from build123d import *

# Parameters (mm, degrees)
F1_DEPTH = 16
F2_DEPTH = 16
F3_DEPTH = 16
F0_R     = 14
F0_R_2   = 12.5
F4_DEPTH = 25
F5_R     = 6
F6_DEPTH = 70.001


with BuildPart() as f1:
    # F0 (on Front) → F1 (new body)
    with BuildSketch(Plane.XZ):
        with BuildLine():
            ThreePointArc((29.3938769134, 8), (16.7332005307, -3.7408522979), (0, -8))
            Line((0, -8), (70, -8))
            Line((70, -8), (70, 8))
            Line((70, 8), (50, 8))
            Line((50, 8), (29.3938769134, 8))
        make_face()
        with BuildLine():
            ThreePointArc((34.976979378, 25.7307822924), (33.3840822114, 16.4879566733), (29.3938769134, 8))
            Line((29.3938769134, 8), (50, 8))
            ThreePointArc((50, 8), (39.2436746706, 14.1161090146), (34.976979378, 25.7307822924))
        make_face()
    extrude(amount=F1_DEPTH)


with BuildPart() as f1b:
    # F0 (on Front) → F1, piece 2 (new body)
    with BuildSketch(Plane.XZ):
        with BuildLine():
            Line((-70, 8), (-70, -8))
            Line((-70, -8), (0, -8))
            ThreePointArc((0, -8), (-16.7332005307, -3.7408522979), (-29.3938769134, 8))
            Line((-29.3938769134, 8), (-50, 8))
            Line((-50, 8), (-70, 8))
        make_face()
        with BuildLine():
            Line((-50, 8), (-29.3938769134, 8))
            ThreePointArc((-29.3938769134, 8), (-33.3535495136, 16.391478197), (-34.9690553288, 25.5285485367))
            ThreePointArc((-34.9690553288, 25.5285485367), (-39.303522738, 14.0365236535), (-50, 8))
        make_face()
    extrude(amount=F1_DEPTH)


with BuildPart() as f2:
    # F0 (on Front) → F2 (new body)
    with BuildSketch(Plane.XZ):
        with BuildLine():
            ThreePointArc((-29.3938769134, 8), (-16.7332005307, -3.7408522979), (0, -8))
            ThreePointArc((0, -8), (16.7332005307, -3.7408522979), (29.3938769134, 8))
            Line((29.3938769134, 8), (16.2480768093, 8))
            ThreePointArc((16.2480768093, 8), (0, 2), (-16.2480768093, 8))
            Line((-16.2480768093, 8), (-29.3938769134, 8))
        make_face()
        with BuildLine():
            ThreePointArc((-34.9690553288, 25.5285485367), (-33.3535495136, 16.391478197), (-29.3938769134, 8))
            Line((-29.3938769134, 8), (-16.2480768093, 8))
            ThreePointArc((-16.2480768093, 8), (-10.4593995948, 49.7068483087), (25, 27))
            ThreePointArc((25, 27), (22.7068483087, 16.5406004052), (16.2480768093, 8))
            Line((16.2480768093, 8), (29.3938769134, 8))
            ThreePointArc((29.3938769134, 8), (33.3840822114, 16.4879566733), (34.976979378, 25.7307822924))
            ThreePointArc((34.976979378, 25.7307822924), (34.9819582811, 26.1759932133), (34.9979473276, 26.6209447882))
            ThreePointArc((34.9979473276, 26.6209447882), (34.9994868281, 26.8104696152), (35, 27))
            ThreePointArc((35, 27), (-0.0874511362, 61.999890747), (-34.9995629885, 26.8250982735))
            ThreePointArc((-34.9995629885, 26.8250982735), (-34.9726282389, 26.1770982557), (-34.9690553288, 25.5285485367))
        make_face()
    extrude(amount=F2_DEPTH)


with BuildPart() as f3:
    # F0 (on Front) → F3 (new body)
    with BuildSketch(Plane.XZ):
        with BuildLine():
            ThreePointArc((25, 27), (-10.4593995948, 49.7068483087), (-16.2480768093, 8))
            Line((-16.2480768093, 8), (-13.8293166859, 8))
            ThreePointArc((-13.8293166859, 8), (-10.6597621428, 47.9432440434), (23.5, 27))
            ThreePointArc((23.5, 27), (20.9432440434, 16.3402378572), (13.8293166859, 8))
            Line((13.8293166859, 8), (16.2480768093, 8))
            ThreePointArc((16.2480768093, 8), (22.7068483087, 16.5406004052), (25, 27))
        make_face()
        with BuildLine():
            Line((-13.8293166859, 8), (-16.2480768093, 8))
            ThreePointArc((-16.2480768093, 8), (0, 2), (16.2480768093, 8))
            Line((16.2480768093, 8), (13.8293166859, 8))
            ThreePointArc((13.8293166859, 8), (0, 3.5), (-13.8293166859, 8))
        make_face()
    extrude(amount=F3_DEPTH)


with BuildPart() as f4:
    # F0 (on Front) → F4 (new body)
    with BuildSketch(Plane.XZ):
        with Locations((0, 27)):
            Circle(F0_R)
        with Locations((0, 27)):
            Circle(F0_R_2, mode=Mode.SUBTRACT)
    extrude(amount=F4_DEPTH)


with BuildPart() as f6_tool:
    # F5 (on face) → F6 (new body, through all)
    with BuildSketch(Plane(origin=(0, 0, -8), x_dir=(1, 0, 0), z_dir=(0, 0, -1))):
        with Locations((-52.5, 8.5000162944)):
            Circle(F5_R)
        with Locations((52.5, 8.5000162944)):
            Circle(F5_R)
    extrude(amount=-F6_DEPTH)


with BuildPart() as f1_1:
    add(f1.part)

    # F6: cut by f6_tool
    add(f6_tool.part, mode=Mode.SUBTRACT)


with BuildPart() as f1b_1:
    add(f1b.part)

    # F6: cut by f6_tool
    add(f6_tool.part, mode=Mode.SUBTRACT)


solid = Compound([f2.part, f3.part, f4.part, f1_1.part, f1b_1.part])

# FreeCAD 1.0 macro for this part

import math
import FreeCAD as App
import Part
import Sketcher

doc = App.newDocument("Part")
body = doc.addObject("PartDesign::Body", "Body")

# Sketch on XZ plane
sketch1 = body.newObject("Sketcher::SketchObject", "Sketch")
sketch1.AttachmentSupport = (doc.getObject("XZ_Plane"), [""])
sketch1.MapMode = "FlatFace"
sketch1.addGeometry([
    Part.ArcOfCircle(Part.Circle(App.Vector(0, 27, 0), App.Vector(0, 0, 1), 35), math.radians(-90), math.radians(-33)),  # 0
    Part.LineSegment(App.Vector(0, -8, 0), App.Vector(70, -8, 0)),  # 1
    Part.LineSegment(App.Vector(70, -8, 0), App.Vector(70, 8, 0)),  # 2
    Part.LineSegment(App.Vector(70, 8, 0), App.Vector(50, 8, 0)),  # 3
    Part.ArcOfCircle(Part.Circle(App.Vector(53, 26, 0), App.Vector(0, 0, 1), 18), math.radians(-180), math.radians(-100)),  # 4
    Part.ArcOfCircle(Part.Circle(App.Vector(0, 27, 0), App.Vector(0, 0, 1), 35), math.radians(-33), math.radians(-2)),  # 5
], False)
sketch1.addConstraint([
    Sketcher.Constraint("Tangent", 0, 1, 1, 1),
    Sketcher.Constraint("Coincident", 1, 2, 2, 1),
    Sketcher.Constraint("Coincident", 2, 2, 3, 1),
    Sketcher.Constraint("Coincident", 3, 2, 4, 2),
    Sketcher.Constraint("Coincident", 4, 1, 5, 2),
    Sketcher.Constraint("Tangent", 5, 1, 0, 2),
    Sketcher.Constraint("Horizontal", 1),
    Sketcher.Constraint("Vertical", 2),
    Sketcher.Constraint("Horizontal", 3),
    Sketcher.Constraint("Equal", 0, 5),
    Sketcher.Constraint("PointOnObject", 0, 3, -2),
    Sketcher.Constraint("Horizontal", 3, 2, 5, 1),
    Sketcher.Constraint("Radius", 0, 35.0),
    Sketcher.Constraint("Radius", 4, 18.0),
    Sketcher.Constraint("DistanceX", 1, 1, 1, 2, 70.0),
    Sketcher.Constraint("DistanceX", 3, 2, 3, 1, 20.0),
    Sketcher.Constraint("DistanceY", 2, 1, 2, 2, 16.0),
    Sketcher.Constraint("DistanceY", -1, 1, 0, 3, 27.0),
    Sketcher.Constraint("DistanceX", -1, 1, 4, 1, 34.976979),
])
pad1 = body.newObject("PartDesign::Pad", "Pad")
pad1.Profile = sketch1
pad1.Length = 16
body2 = doc.addObject("PartDesign::Body", "Body001")

# Sketch on XZ plane
sketch2 = body2.newObject("Sketcher::SketchObject", "Sketch001")
sketch2.AttachmentSupport = (doc.getObject("XZ_Plane001"), [""])
sketch2.MapMode = "FlatFace"
sketch2.addGeometry([
    Part.LineSegment(App.Vector(-70, 8, 0), App.Vector(-70, -8, 0)),  # 0
    Part.LineSegment(App.Vector(-70, -8, 0), App.Vector(0, -8, 0)),  # 1
    Part.ArcOfCircle(Part.Circle(App.Vector(0, 27, 0), App.Vector(0, 0, 1), 35), math.radians(-147), math.radians(-90)),  # 2
    Part.ArcOfCircle(Part.Circle(App.Vector(0, 27, 0), App.Vector(0, 0, 1), 35), math.radians(-178), math.radians(-147)),  # 3
    Part.ArcOfCircle(Part.Circle(App.Vector(-53, 26, 0), App.Vector(0, 0, 1), 18), math.radians(-81), math.radians(-1)),  # 4
    Part.LineSegment(App.Vector(-50, 8, 0), App.Vector(-70, 8, 0)),  # 5
], False)
sketch2.addConstraint([
    Sketcher.Constraint("Coincident", 0, 2, 1, 1),
    Sketcher.Constraint("Tangent", 1, 2, 2, 2),
    Sketcher.Constraint("Tangent", 2, 1, 3, 2),
    Sketcher.Constraint("Coincident", 3, 1, 4, 2),
    Sketcher.Constraint("Coincident", 4, 1, 5, 1),
    Sketcher.Constraint("Coincident", 5, 2, 0, 1),
    Sketcher.Constraint("Vertical", 0),
    Sketcher.Constraint("Horizontal", 1),
    Sketcher.Constraint("Horizontal", 5),
    Sketcher.Constraint("Equal", 2, 3),
    Sketcher.Constraint("PointOnObject", 2, 3, -2),
    Sketcher.Constraint("Horizontal", 2, 1, 4, 1),
    Sketcher.Constraint("Radius", 2, 35.0),
    Sketcher.Constraint("Radius", 4, 18.0),
    Sketcher.Constraint("DistanceX", 1, 1, 1, 2, 70.0),
    Sketcher.Constraint("DistanceX", 5, 2, 5, 1, 20.0),
    Sketcher.Constraint("DistanceY", 0, 2, 0, 1, 16.0),
    Sketcher.Constraint("DistanceY", -1, 1, 2, 3, 27.0),
    Sketcher.Constraint("DistanceY", -1, 1, 3, 1, 25.528549),
])
pad2 = body2.newObject("PartDesign::Pad", "Pad001")
pad2.Profile = sketch2
pad2.Length = 16
body3 = doc.addObject("PartDesign::Body", "Body002")

# Sketch on XZ plane
sketch3 = body3.newObject("Sketcher::SketchObject", "Sketch002")
sketch3.AttachmentSupport = (doc.getObject("XZ_Plane002"), [""])
sketch3.MapMode = "FlatFace"
sketch3.addGeometry([
    Part.ArcOfCircle(Part.Circle(App.Vector(0, 27, 0), App.Vector(0, 0, 1), 35), math.radians(-147), math.radians(-90)),  # 0
    Part.ArcOfCircle(Part.Circle(App.Vector(0, 27, 0), App.Vector(0, 0, 1), 35), math.radians(-90), math.radians(-33)),  # 1
    Part.ArcOfCircle(Part.Circle(App.Vector(0, 27, 0), App.Vector(0, 0, 1), 35), math.radians(-33), math.radians(-2)),  # 2
    Part.ArcOfCircle(Part.Circle(App.Vector(52.98, 25.75, 0), App.Vector(0, 0, 1), 18), math.radians(177.23), math.radians(180.07)),  # 3
    Part.ArcOfCircle(Part.Circle(App.Vector(0, 27, 0), App.Vector(0, 0, 1), 35), math.radians(-0.62), math.radians(0)),  # 4
    Part.ArcOfCircle(Part.Circle(App.Vector(0, 27, 0), App.Vector(0, 0, 1), 35), math.radians(0), math.radians(180)),  # 5
    Part.ArcOfCircle(Part.Circle(App.Vector(-52.97, 25.75, 0), App.Vector(0, 0, 1), 18), math.radians(-0.72), math.radians(3.41)),  # 6
    Part.ArcOfCircle(Part.Circle(App.Vector(0, 27, 0), App.Vector(0, 0, 1), 35), math.radians(-178), math.radians(-147)),  # 7
    Part.ArcOfCircle(Part.Circle(App.Vector(0, 27, 0), App.Vector(0, 0, 1), 25), math.radians(-131), math.radians(-49)),  # 8
    Part.ArcOfCircle(Part.Circle(App.Vector(0, 27, 0), App.Vector(0, 0, 1), 25), math.radians(0), math.radians(229)),  # 9
    Part.ArcOfCircle(Part.Circle(App.Vector(0, 27, 0), App.Vector(0, 0, 1), 25), math.radians(-49), math.radians(0)),  # 10
], False)
sketch3.addConstraint([
    Sketcher.Constraint("Tangent", 0, 2, 1, 1),
    Sketcher.Constraint("Tangent", 1, 2, 2, 1),
    Sketcher.Constraint("Coincident", 2, 2, 3, 2),
    Sketcher.Constraint("Coincident", 3, 1, 4, 1),
    Sketcher.Constraint("Tangent", 4, 2, 5, 1),
    Sketcher.Constraint("Coincident", 5, 2, 6, 2),
    Sketcher.Constraint("Coincident", 6, 1, 7, 1),
    Sketcher.Constraint("Tangent", 7, 2, 0, 1),
    Sketcher.Constraint("Tangent", 8, 1, 9, 2),
    Sketcher.Constraint("Tangent", 9, 1, 10, 2),
    Sketcher.Constraint("Tangent", 10, 1, 8, 2),
    Sketcher.Constraint("Coincident", 2, 3, 0, 3),
    Sketcher.Constraint("Coincident", 4, 3, 0, 3),
    Sketcher.Constraint("Coincident", 8, 3, 0, 3),
    Sketcher.Constraint("Equal", 2, 5),
    Sketcher.Constraint("Equal", 3, 6),
    Sketcher.Constraint("Equal", 5, 7),
    Sketcher.Constraint("Symmetric", 1, 2, 7, 2, -2),
    Sketcher.Constraint("PointOnObject", 5, 3, -2),
    Sketcher.Constraint("PointOnObject", 0, 2, -2),
    Sketcher.Constraint("Horizontal", 10, 3, 4, 2),
    Sketcher.Constraint("Horizontal", 7, 2, 8, 1),
    Sketcher.Constraint("Horizontal", 4, 2, 9, 1),
    Sketcher.Constraint("Horizontal", 8, 1, 10, 1),
    Sketcher.Constraint("Radius", 0, 35.0),
    Sketcher.Constraint("Radius", 3, 18.0),
    Sketcher.Constraint("Radius", 8, 25.0),
    Sketcher.Constraint("DistanceY", -1, 1, 0, 3, 27.0),
    Sketcher.Constraint("DistanceY", -1, 1, 1, 2, 8.0),
    Sketcher.Constraint("DistanceY", -1, 1, 5, 2, 26.825098),
    Sketcher.Constraint("DistanceX", -1, 1, 2, 2, 34.976979),
    Sketcher.Constraint("DistanceY", -1, 1, 6, 1, 25.528549),
    Sketcher.Constraint("DistanceX", 3, 1, 3, 3, 17.979019),
])
pad3 = body3.newObject("PartDesign::Pad", "Pad002")
pad3.Profile = sketch3
pad3.Length = 16
body4 = doc.addObject("PartDesign::Body", "Body003")

# Sketch on XZ plane
sketch4 = body4.newObject("Sketcher::SketchObject", "Sketch003")
sketch4.AttachmentSupport = (doc.getObject("XZ_Plane003"), [""])
sketch4.MapMode = "FlatFace"
sketch4.addGeometry([
    Part.ArcOfCircle(Part.Circle(App.Vector(0, 27, 0), App.Vector(0, 0, 1), 25), math.radians(0), math.radians(229)),  # 0
    Part.ArcOfCircle(Part.Circle(App.Vector(0, 27, 0), App.Vector(0, 0, 1), 25), math.radians(-131), math.radians(-49)),  # 1
    Part.ArcOfCircle(Part.Circle(App.Vector(0, 27, 0), App.Vector(0, 0, 1), 25), math.radians(-49), math.radians(0)),  # 2
    Part.ArcOfCircle(Part.Circle(App.Vector(0, 27, 0), App.Vector(0, 0, 1), 24), math.radians(0), math.radians(234)),  # 3
    Part.ArcOfCircle(Part.Circle(App.Vector(0, 27, 0), App.Vector(0, 0, 1), 23), math.radians(-54), math.radians(0)),  # 4
    Part.ArcOfCircle(Part.Circle(App.Vector(0, 27, 0), App.Vector(0, 0, 1), 24), math.radians(-126), math.radians(-54)),  # 5
], False)
sketch4.addConstraint([
    Sketcher.Constraint("Tangent", 0, 2, 1, 1),
    Sketcher.Constraint("Tangent", 1, 2, 2, 1),
    Sketcher.Constraint("Tangent", 2, 2, 0, 1),
    Sketcher.Constraint("Tangent", 3, 1, 4, 2),
    Sketcher.Constraint("Tangent", 4, 1, 5, 2),
    Sketcher.Constraint("Tangent", 5, 1, 3, 2),
    Sketcher.Constraint("Coincident", 3, 3, 0, 3),
    Sketcher.Constraint("Symmetric", 0, 2, 1, 2, -2),
    Sketcher.Constraint("Horizontal", 5, 3, 2, 2),
    Sketcher.Constraint("Horizontal", 2, 2, 3, 1),
    Sketcher.Constraint("Horizontal", 1, 2, 4, 1),
    Sketcher.Constraint("Horizontal", 4, 1, 5, 1),
    Sketcher.Constraint("Radius", 0, 25.0),
    Sketcher.Constraint("Radius", 3, 23.5),
    Sketcher.Constraint("DistanceY", -1, 1, 0, 3, 27.0),
    Sketcher.Constraint("DistanceY", -1, 1, 0, 2, 8.0),
])
pad4 = body4.newObject("PartDesign::Pad", "Pad003")
pad4.Profile = sketch4
pad4.Length = 16
body5 = doc.addObject("PartDesign::Body", "Body004")

# Sketch on XZ plane
sketch5 = body5.newObject("Sketcher::SketchObject", "Sketch004")
sketch5.AttachmentSupport = (doc.getObject("XZ_Plane004"), [""])
sketch5.MapMode = "FlatFace"
sketch5.addGeometry([
    Part.Circle(App.Vector(0, 27, 0), App.Vector(0, 0, 1), 14),
    Part.Circle(App.Vector(0, 27, 0), App.Vector(0, 0, 1), 12),
], False)
sketch5.addConstraint([
    Sketcher.Constraint("Coincident", 1, 3, 0, 3),
    Sketcher.Constraint("PointOnObject", 0, 3, -2),
    Sketcher.Constraint("Diameter", 0, 28.0),
    Sketcher.Constraint("Diameter", 1, 25.0),
    Sketcher.Constraint("DistanceY", -1, 1, 0, 3, 27.0),
])
pad5 = body5.newObject("PartDesign::Pad", "Pad004")
pad5.Profile = sketch5
pad5.Length = 25
body6 = doc.addObject("PartDesign::Body", "Body005")
body6.AllowCompound = True

# Sketch on XY plane
sketch6 = body6.newObject("Sketcher::SketchObject", "Sketch005")
sketch6.AttachmentSupport = (doc.getObject("XY_Plane005"), [""])
sketch6.MapMode = "FlatFace"
sketch6.AttachmentOffset = App.Placement(App.Vector(0, 0, -8), App.Rotation())
sketch6.addGeometry([
    Part.Circle(App.Vector(-52, -9, 0), App.Vector(0, 0, 1), 6),
    Part.Circle(App.Vector(52, -9, 0), App.Vector(0, 0, 1), 6),
], False)
sketch6.addConstraint([
    Sketcher.Constraint("Equal", 0, 1),
    Sketcher.Constraint("Symmetric", 0, 3, 1, 3, -2),
    Sketcher.Constraint("Diameter", 0, 12.0),
    Sketcher.Constraint("DistanceX", 0, 3, 1, 3, 105.0),
    Sketcher.Constraint("DistanceY", 0, 3, -1, 1, 8.500016),
])
pad6 = body6.newObject("PartDesign::Pad", "Pad005")
pad6.Profile = sketch6
pad6.Length = 70.001
doc.recompute()

body7 = doc.addObject("PartDesign::Body", "Body006")
body7.BaseFeature = body6
boolean = body.newObject("PartDesign::Boolean", "Boolean")
boolean.Type = "Cut"
boolean.addObjects([body7])
doc.recompute()

boolean2 = body2.newObject("PartDesign::Boolean", "Boolean001")
boolean2.Type = "Cut"
boolean2.addObjects([body6])

doc.recompute()
